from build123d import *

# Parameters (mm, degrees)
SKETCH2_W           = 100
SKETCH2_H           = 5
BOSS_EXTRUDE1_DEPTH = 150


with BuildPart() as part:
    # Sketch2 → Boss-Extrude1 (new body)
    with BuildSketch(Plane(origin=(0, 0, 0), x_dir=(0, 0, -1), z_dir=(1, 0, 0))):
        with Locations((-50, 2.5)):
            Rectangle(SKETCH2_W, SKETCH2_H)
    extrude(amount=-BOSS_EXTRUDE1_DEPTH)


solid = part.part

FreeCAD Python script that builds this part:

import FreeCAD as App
import Part
import Sketcher

V = App.Vector
Q = App.Units.Quantity


def add_polygon(sketch, points):
    """Adds a closed chain of lines whose ends are joined by coincident constraints."""
    first, n = sketch.GeometryCount, len(points)
    for a, b in zip(points, points[1:] + points[:1]):
        sketch.addGeometry(Part.LineSegment(App.Vector(*a, 0), App.Vector(*b, 0)), False)
    for i in range(n):
        sketch.addConstraint(Sketcher.Constraint("Coincident", first + i, 2, first + (i + 1) % n, 1))

doc = App.newDocument("Part")
body = doc.addObject("PartDesign::Body", "Body")

# Sketch on YZ plane
sketch1 = body.newObject("Sketcher::SketchObject", "Sketch")
sketch1.AttachmentSupport = (doc.getObject("YZ_Plane"), [""])
sketch1.MapMode = "FlatFace"
add_polygon(sketch1, [(5, 100), (0, 100), (0, 0), (5, 0)])  # lines 0-3
sketch1.addConstraint(Sketcher.Constraint("Horizontal", 0))
sketch1.addConstraint(Sketcher.Constraint("Vertical", 1))
sketch1.addConstraint(Sketcher.Constraint("Horizontal", 2))
sketch1.addConstraint(Sketcher.Constraint("Vertical", 3))
sketch1.addConstraint(Sketcher.Constraint("Coincident", 1, 2, -1, 1))
sketch1.addConstraint(Sketcher.Constraint("DistanceX", 0, 2, 0, 1, Q("5 mm")))
sketch1.addConstraint(Sketcher.Constraint("DistanceY", 1, 2, 1, 1, Q("100 mm")))
pad1 = body.newObject("PartDesign::Pad", "Pad")
pad1.Profile = sketch1
pad1.Length = 150
pad1.Reversed = True

doc.recompute()
